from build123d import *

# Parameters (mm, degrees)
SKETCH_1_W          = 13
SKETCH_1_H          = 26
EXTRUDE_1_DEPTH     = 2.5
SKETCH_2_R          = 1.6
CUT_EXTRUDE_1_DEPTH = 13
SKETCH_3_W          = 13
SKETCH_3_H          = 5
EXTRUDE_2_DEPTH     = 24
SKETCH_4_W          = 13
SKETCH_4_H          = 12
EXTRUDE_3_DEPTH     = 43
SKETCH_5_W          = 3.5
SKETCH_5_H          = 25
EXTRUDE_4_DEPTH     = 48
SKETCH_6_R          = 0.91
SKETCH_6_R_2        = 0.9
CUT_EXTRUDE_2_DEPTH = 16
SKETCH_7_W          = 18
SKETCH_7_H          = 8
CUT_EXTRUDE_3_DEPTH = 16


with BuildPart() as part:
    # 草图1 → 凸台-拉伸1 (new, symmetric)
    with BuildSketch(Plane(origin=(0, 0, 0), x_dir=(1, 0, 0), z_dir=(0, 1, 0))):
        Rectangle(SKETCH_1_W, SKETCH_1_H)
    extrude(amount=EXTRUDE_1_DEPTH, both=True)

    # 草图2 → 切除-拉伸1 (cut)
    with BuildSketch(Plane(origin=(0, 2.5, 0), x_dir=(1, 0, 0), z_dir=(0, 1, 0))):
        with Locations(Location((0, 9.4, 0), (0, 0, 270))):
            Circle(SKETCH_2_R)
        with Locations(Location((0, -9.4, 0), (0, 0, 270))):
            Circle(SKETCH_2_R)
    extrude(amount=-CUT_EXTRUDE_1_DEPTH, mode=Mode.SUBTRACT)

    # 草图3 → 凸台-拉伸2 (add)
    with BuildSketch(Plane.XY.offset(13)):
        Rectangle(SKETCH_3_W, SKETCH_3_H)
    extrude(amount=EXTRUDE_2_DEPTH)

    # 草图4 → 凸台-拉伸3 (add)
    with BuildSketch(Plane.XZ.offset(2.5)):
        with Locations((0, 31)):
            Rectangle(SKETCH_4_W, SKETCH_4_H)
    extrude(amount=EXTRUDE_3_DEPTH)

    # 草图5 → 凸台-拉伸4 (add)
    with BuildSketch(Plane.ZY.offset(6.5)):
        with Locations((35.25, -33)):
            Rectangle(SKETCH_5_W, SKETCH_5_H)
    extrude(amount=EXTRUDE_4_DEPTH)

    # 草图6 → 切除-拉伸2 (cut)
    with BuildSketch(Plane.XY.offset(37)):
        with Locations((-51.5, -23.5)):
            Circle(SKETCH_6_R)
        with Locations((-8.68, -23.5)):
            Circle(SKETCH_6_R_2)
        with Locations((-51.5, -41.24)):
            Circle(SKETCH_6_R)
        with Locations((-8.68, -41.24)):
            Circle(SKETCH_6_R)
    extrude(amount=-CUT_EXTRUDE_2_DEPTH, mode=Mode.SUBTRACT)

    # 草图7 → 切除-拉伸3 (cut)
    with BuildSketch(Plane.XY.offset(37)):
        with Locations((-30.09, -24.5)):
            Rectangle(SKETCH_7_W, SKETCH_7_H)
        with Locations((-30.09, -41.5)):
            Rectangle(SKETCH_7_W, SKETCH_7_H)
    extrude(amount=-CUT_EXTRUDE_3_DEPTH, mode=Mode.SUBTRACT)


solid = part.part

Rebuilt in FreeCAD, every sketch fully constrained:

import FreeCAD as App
import Part
import Sketcher
from FreeCAD import Vector


def add_polygon(sketch, points):
    """Adds a closed chain of lines whose ends are joined by coincident constraints."""
    first, n = sketch.GeometryCount, len(points)
    for a, b in zip(points, points[1:] + points[:1]):
        sketch.addGeometry(Part.LineSegment(App.Vector(*a, 0), App.Vector(*b, 0)), False)
    for i in range(n):
        sketch.addConstraint(Sketcher.Constraint("Coincident", first + i, 2, first + (i + 1) % n, 1))

doc = App.newDocument("Part")
body = doc.addObject("PartDesign::Body", "Body")

# Sketch on XZ plane
sketch1 = body.newObject("Sketcher::SketchObject", "Sketch")
sketch1.AttachmentSupport = (doc.getObject("XZ_Plane"), [""])
sketch1.MapMode = "FlatFace"
add_polygon(sketch1, [(-6, -13), (-6, 13), (6, 13), (6, -13)])  # lines 0-3
sketch1.addConstraint([
    Sketcher.Constraint("Vertical", 0),
    Sketcher.Constraint("Horizontal", 1),
    Sketcher.Constraint("Vertical", 2),
    Sketcher.Constraint("Horizontal", 3),
    Sketcher.Constraint("Symmetric", 0, 2, 2, 2, -1, 1),
    Sketcher.Constraint("DistanceX", 1, 1, 1, 2, 13.0),
    Sketcher.Constraint("DistanceY", 0, 1, 0, 2, 26.0),
])
pad1 = body.newObject("PartDesign::Pad", "Pad")
pad1.Profile = sketch1
pad1.Length = 5
pad1.Midplane = True

# Sketch on XZ plane
sketch2 = body.newObject("Sketcher::SketchObject", "Sketch001")
sketch2.AttachmentSupport = (doc.getObject("XZ_Plane"), [""])
sketch2.MapMode = "FlatFace"
sketch2.AttachmentOffset = App.Placement(Vector(0, 0, -2.5), App.Rotation())
sketch2.addGeometry([
    Part.Circle(Vector(0, -9.4, 0), Vector(0, 0, 1), 1.6),
    Part.Circle(Vector(0, 9.4, 0), Vector(0, 0, 1), 1.6),
], False)
sketch2.addConstraint([
    Sketcher.Constraint("Equal", 0, 1),
    Sketcher.Constraint("Symmetric", 0, 3, 1, 3, -1, 1),
    Sketcher.Constraint("PointOnObject", 0, 3, -2),
    Sketcher.Constraint("Diameter", 0, 3.2),
    Sketcher.Constraint("DistanceY", 0, 3, -1, 1, 9.4),
])
pocket1 = body.newObject("PartDesign::Pocket", "Pocket")
pocket1.Profile = sketch2
pocket1.Length = 13
pocket1.Reversed = True

# Sketch on XY plane
sketch3 = body.newObject("Sketcher::SketchObject", "Sketch002")
sketch3.AttachmentSupport = (doc.getObject("XY_Plane"), [""])
sketch3.MapMode = "FlatFace"
sketch3.AttachmentOffset = App.Placement(Vector(0, 0, 13), App.Rotation())
add_polygon(sketch3, [(-6, 2), (-6, -2), (6, -2), (6, 2)])  # lines 0-3
sketch3.addConstraint([
    Sketcher.Constraint("Vertical", 0),
    Sketcher.Constraint("Horizontal", 1),
    Sketcher.Constraint("Vertical", 2),
    Sketcher.Constraint("Horizontal", 3),
    Sketcher.Constraint("Symmetric", 0, 2, 2, 2, -1, 1),
    Sketcher.Constraint("DistanceX", 1, 1, 1, 2, 13.0),
    Sketcher.Constraint("DistanceY", 0, 2, 0, 1, 5.0),
])
pad2 = body.newObject("PartDesign::Pad", "Pad001")
pad2.Profile = sketch3
pad2.Length = 24

# Sketch on XZ plane
sketch4 = body.newObject("Sketcher::SketchObject", "Sketch003")
sketch4.AttachmentSupport = (doc.getObject("XZ_Plane"), [""])
sketch4.MapMode = "FlatFace"
sketch4.AttachmentOffset = App.Placement(Vector(0, 0, 2.5), App.Rotation())
add_polygon(sketch4, [(-6, 37), (-6, 25), (6, 25), (6, 37)])  # lines 0-3
sketch4.addConstraint([
    Sketcher.Constraint("Vertical", 0),
    Sketcher.Constraint("Horizontal", 1),
    Sketcher.Constraint("Vertical", 2),
    Sketcher.Constraint("Horizontal", 3),
    Sketcher.Constraint("DistanceX", 1, 1, 1, 2, 13.0),
    Sketcher.Constraint("DistanceY", 0, 2, 0, 1, 12.0),
    Sketcher.Constraint("DistanceY", -1, 1, 0, 2, 25.0),
    Sketcher.Constraint("DistanceX", 0, 2, -1, 1, 6.5),
])
pad3 = body.newObject("PartDesign::Pad", "Pad002")
pad3.Profile = sketch4
pad3.Length = 43

# Sketch on YZ plane
sketch5 = body.newObject("Sketcher::SketchObject", "Sketch004")
sketch5.AttachmentSupport = (doc.getObject("YZ_Plane"), [""])
sketch5.MapMode = "FlatFace"
sketch5.AttachmentOffset = App.Placement(Vector(0, 0, -6.5), App.Rotation())
add_polygon(sketch5, [(-20.5, 33.5), (-45.5, 33.5), (-45.5, 37), (-20.5, 37)])  # lines 0-3
sketch5.addConstraint([
    Sketcher.Constraint("Horizontal", 0),
    Sketcher.Constraint("Vertical", 1),
    Sketcher.Constraint("Horizontal", 2),
    Sketcher.Constraint("Vertical", 3),
    Sketcher.Constraint("DistanceX", 0, 2, 0, 1, 25.0),
    Sketcher.Constraint("DistanceY", 1, 1, 1, 2, 3.5),
    Sketcher.Constraint("DistanceY", -1, 1, 1, 2, 37.0),
    Sketcher.Constraint("DistanceX", 0, 2, -1, 1, 45.5),
])
pad4 = body.newObject("PartDesign::Pad", "Pad003")
pad4.Profile = sketch5
pad4.Length = 48
pad4.Reversed = True

# Sketch on XY plane
sketch6 = body.newObject("Sketcher::SketchObject", "Sketch005")
sketch6.AttachmentSupport = (doc.getObject("XY_Plane"), [""])
sketch6.MapMode = "FlatFace"
sketch6.AttachmentOffset = App.Placement(Vector(0, 0, 37), App.Rotation())
sketch6.addGeometry([
    Part.Circle(Vector(-51.5, -23.5, 0), Vector(0, 0, 1), 0.9),
    Part.Circle(Vector(-8.7, -23.5, 0), Vector(0, 0, 1), 0.9),
    Part.Circle(Vector(-51.5, -41.2, 0), Vector(0, 0, 1), 0.9),
    Part.Circle(Vector(-8.7, -41.2, 0), Vector(0, 0, 1), 0.9),
], False)
sketch6.addConstraint([
    Sketcher.Constraint("Equal", 0, 2),
    Sketcher.Constraint("Equal", 2, 3),
    Sketcher.Constraint("Horizontal", 0, 3, 1, 3),
    Sketcher.Constraint("Horizontal", 2, 3, 3, 3),
    Sketcher.Constraint("Vertical", 0, 3, 2, 3),
    Sketcher.Constraint("Vertical", 1, 3, 3, 3),
    Sketcher.Constraint("Diameter", 1, 1.8),
    Sketcher.Constraint("Diameter", 0, 1.82),
    Sketcher.Constraint("DistanceX", 0, 3, -1, 1, 51.5),
    Sketcher.Constraint("DistanceY", 0, 3, -1, 1, 23.5),
    Sketcher.Constraint("DistanceX", 1, 3, -1, 1, 8.68),
    Sketcher.Constraint("DistanceY", 2, 3, -1, 1, 41.24),
])
pocket2 = body.newObject("PartDesign::Pocket", "Pocket001")
pocket2.Profile = sketch6
pocket2.Length = 16

# Sketch on XY plane
sketch7 = body.newObject("Sketcher::SketchObject", "Sketch006")
sketch7.AttachmentSupport = (doc.getObject("XY_Plane"), [""])
sketch7.MapMode = "FlatFace"
sketch7.AttachmentOffset = App.Placement(Vector(0, 0, 37), App.Rotation())
add_polygon(sketch7, [(-39, -20), (-39, -28), (-21, -28), (-21, -20)])  # lines 0-3
add_polygon(sketch7, [(-39, -38), (-39, -46), (-21, -46), (-21, -38)])  # lines 4-7
sketch7.addConstraint([
    Sketcher.Constraint("Vertical", 0),
    Sketcher.Constraint("Horizontal", 1),
    Sketcher.Constraint("Vertical", 2),
    Sketcher.Constraint("Horizontal", 3),
    Sketcher.Constraint("Vertical", 4),
    Sketcher.Constraint("Horizontal", 5),
    Sketcher.Constraint("Vertical", 6),
    Sketcher.Constraint("Horizontal", 7),
    Sketcher.Constraint("Vertical", 3, 2, 4, 2),
    Sketcher.Constraint("Vertical", 2, 2, 5, 2),
    Sketcher.Constraint("Equal", 2, 4),
    Sketcher.Constraint("DistanceX", 1, 1, 1, 2, 18.0),
    Sketcher.Constraint("DistanceY", 0, 2, 0, 1, 8.0),
    Sketcher.Constraint("DistanceY", 4, 2, 0, 2, 17.0),
    Sketcher.Constraint("DistanceY", 0, 2, -1, 1, 28.5),
    Sketcher.Constraint("DistanceX", 0, 2, -1, 1, 39.09),
])
pocket3 = body.newObject("PartDesign::Pocket", "Pocket002")
pocket3.Profile = sketch7
pocket3.Length = 16

doc.recompute()
